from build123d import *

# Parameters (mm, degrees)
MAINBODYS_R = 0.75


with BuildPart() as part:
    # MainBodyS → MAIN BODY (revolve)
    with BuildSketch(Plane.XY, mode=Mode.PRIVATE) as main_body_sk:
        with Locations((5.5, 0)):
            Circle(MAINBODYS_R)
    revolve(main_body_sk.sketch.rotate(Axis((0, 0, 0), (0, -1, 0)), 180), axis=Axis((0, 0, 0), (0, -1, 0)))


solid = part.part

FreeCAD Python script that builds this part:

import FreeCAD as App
import Part
import Sketcher
from FreeCAD import Vector

doc = App.newDocument("Part")
body = doc.addObject("PartDesign::Body", "Body")

# Sketch on XY plane
sketch1 = body.newObject("Sketcher::SketchObject", "Sketch")
sketch1.AttachmentSupport = (doc.getObject("XY_Plane"), [""])
sketch1.MapMode = "FlatFace"
sketch1.addGeometry(Part.Circle(Vector(5.5, 0, 0), Vector(0, 0, 1), 0.8), False)
sketch1.addConstraint([
    Sketcher.Constraint("PointOnObject", 0, 3, -1),
    Sketcher.Constraint("Diameter", 0, 1.5),
    Sketcher.Constraint("DistanceX", -1, 1, 0, 3, 5.5),
])
revolution = body.newObject("PartDesign::Revolution", "Revolution")
revolution.Profile = sketch1
revolution.ReferenceAxis = (sketch1, ["V_Axis"])
revolution.Angle = 360

doc.recompute()
